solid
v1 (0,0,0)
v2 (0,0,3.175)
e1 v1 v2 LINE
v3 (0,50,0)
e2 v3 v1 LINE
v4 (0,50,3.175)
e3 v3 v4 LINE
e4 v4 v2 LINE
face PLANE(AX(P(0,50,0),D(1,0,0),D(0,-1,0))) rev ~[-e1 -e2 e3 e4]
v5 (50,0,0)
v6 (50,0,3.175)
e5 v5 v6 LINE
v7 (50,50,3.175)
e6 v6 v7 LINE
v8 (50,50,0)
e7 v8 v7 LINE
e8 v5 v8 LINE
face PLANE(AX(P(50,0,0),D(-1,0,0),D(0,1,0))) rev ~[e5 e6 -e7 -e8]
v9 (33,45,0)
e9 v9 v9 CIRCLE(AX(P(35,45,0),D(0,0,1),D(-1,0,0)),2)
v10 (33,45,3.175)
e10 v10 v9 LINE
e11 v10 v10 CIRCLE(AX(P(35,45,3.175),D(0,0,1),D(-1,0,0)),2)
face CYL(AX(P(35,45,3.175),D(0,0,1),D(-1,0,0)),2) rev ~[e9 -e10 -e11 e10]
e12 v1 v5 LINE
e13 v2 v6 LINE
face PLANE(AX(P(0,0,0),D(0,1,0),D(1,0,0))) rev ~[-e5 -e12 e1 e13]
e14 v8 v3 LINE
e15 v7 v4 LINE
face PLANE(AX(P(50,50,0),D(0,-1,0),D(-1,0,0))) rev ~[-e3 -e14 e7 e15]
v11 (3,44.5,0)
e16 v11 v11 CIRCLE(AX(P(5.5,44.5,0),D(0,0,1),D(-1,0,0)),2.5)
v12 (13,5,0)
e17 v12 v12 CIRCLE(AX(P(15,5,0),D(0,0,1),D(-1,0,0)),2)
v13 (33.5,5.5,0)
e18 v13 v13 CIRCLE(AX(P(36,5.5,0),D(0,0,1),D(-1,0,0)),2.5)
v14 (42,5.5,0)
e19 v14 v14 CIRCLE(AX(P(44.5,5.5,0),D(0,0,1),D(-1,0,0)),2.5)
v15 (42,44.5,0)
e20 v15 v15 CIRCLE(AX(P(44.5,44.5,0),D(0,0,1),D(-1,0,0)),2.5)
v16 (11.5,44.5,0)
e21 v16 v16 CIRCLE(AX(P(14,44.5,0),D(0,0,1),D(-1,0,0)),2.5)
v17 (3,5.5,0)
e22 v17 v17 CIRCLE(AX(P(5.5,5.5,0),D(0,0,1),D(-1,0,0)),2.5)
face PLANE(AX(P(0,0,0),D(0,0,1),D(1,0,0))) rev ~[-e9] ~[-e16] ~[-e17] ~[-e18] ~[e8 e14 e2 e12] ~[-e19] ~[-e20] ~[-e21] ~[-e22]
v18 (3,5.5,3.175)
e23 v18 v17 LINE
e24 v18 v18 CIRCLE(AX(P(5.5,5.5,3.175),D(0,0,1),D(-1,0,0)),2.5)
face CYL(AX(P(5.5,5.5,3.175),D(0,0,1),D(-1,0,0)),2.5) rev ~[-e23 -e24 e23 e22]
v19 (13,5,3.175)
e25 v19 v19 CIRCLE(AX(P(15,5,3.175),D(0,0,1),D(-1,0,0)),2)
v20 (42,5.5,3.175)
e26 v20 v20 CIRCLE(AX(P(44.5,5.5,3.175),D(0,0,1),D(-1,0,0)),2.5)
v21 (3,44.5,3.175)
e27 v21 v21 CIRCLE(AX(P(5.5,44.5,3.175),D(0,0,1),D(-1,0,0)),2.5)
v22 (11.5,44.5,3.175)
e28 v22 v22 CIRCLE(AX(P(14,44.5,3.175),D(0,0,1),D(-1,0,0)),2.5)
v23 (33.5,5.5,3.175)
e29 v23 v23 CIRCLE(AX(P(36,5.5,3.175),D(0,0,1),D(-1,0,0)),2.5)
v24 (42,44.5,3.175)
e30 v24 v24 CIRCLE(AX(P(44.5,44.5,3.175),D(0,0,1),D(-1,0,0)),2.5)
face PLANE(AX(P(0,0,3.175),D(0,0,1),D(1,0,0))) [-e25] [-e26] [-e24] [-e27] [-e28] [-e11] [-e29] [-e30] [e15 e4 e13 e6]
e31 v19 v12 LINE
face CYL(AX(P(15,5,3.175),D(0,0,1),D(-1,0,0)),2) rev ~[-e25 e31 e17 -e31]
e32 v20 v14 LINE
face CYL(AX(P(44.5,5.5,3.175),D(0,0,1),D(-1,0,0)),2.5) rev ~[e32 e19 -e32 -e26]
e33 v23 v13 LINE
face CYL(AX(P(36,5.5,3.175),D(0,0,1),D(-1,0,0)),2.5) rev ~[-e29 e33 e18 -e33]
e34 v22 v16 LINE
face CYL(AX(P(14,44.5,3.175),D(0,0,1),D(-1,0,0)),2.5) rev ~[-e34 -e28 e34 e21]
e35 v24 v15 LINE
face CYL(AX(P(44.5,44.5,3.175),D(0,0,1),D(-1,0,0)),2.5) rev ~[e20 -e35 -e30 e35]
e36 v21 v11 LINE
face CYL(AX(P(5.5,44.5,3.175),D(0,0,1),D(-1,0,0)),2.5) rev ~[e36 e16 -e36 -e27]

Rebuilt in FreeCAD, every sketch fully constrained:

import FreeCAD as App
import Part
import Sketcher


def add_polygon(sketch, points):
    """Adds a closed chain of lines whose ends are joined by coincident constraints."""
    first, n = sketch.GeometryCount, len(points)
    for a, b in zip(points, points[1:] + points[:1]):
        sketch.addGeometry(Part.LineSegment(App.Vector(*a, 0), App.Vector(*b, 0)), False)
    for i in range(n):
        sketch.addConstraint(Sketcher.Constraint("Coincident", first + i, 2, first + (i + 1) % n, 1))

doc = App.newDocument("Part")
body = doc.addObject("PartDesign::Body", "Body")

# Sketch on XY plane
sketch1 = body.newObject("Sketcher::SketchObject", "Sketch")
sketch1.AttachmentSupport = (doc.getObject("XY_Plane"), [""])
sketch1.MapMode = "FlatFace"
add_polygon(sketch1, [(0, 50), (0, 0), (50, 0), (50, 50)])  # lines 0-3
sketch1.addConstraint(Sketcher.Constraint("Vertical", 0))
sketch1.addConstraint(Sketcher.Constraint("Horizontal", 1))
sketch1.addConstraint(Sketcher.Constraint("Vertical", 2))
sketch1.addConstraint(Sketcher.Constraint("Horizontal", 3))
sketch1.addConstraint(Sketcher.Constraint("Coincident", 0, 2, -1, 1))
sketch1.addConstraint(Sketcher.Constraint("Equal", 3, 0))
sketch1.addConstraint(Sketcher.Constraint("DistanceX", 1, 1, 1, 2, 50.0))
pad1 = body.newObject("PartDesign::Pad", "Pad")
pad1.Profile = sketch1
pad1.Length = 3.175

# Sketch on XY plane
sketch2 = body.newObject("Sketcher::SketchObject", "Sketch001")
sketch2.AttachmentSupport = (doc.getObject("XY_Plane"), [""])
sketch2.MapMode = "FlatFace"
sketch2.AttachmentOffset = App.Placement(App.Vector(0, 0, 3.175), App.Rotation())
sketch2.addGeometry(Part.Circle(App.Vector(5.5, 44.5, 0), App.Vector(0, 0, 1), 2.5), False)
sketch2.addGeometry(Part.Circle(App.Vector(44.5, 44.5, 0), App.Vector(0, 0, 1), 2.5), False)
sketch2.addGeometry(Part.Circle(App.Vector(44.5, 5.5, 0), App.Vector(0, 0, 1), 2.5), False)
sketch2.addGeometry(Part.Circle(App.Vector(5.5, 5.5, 0), App.Vector(0, 0, 1), 2.5), False)
sketch2.addConstraint(Sketcher.Constraint("Equal", 0, 1))
sketch2.addConstraint(Sketcher.Constraint("Equal", 1, 2))
sketch2.addConstraint(Sketcher.Constraint("Equal", 2, 3))
sketch2.addConstraint(Sketcher.Constraint("Horizontal", 0, 3, 1, 3))
sketch2.addConstraint(Sketcher.Constraint("Horizontal", 2, 3, 3, 3))
sketch2.addConstraint(Sketcher.Constraint("Vertical", 1, 3, 2, 3))
sketch2.addConstraint(Sketcher.Constraint("Vertical", 0, 3, 3, 3))
sketch2.addConstraint(Sketcher.Constraint("Diameter", 0, 5.0))
sketch2.addConstraint(Sketcher.Constraint("DistanceX", 0, 3, 1, 3, 39.0))
sketch2.addConstraint(Sketcher.Constraint("DistanceY", 2, 3, 1, 3, 39.0))
sketch2.addConstraint(Sketcher.Constraint("DistanceX", -1, 1, 0, 3, 5.5))
sketch2.addConstraint(Sketcher.Constraint("DistanceY", -1, 1, 0, 3, 44.5))
pocket1 = body.newObject("PartDesign::Pocket", "Pocket")
pocket1.Profile = sketch2
pocket1.Length = 3.175

# Sketch on XY plane
sketch3 = body.newObject("Sketcher::SketchObject", "Sketch002")
sketch3.AttachmentSupport = (doc.getObject("XY_Plane"), [""])
sketch3.MapMode = "FlatFace"
sketch3.AttachmentOffset = App.Placement(App.Vector(0, 0, 3.175), App.Rotation())
sketch3.addGeometry(Part.Circle(App.Vector(35, 45, 0), App.Vector(0, 0, 1), 2), False)
sketch3.addGeometry(Part.Circle(App.Vector(15, 5, 0), App.Vector(0, 0, 1), 2), False)
sketch3.addConstraint(Sketcher.Constraint("Equal", 0, 1))
sketch3.addConstraint(Sketcher.Constraint("Diameter", 0, 4.0))
sketch3.addConstraint(Sketcher.Constraint("DistanceX", -1, 1, 0, 3, 35.0))
sketch3.addConstraint(Sketcher.Constraint("DistanceY", -1, 1, 0, 3, 45.0))
sketch3.addConstraint(Sketcher.Constraint("DistanceX", -1, 1, 1, 3, 15.0))
sketch3.addConstraint(Sketcher.Constraint("DistanceY", -1, 1, 1, 3, 5.0))
pocket2 = body.newObject("PartDesign::Pocket", "Pocket001")
pocket2.Profile = sketch3
pocket2.Length = 3.175

# Sketch on XY plane
sketch4 = body.newObject("Sketcher::SketchObject", "Sketch003")
sketch4.AttachmentSupport = (doc.getObject("XY_Plane"), [""])
sketch4.MapMode = "FlatFace"
sketch4.AttachmentOffset = App.Placement(App.Vector(0, 0, 3.175), App.Rotation())
sketch4.addGeometry(Part.Circle(App.Vector(14, 44.5, 0), App.Vector(0, 0, 1), 2.5), False)
sketch4.addGeometry(Part.Circle(App.Vector(36, 5.5, 0), App.Vector(0, 0, 1), 2.5), False)
sketch4.addConstraint(Sketcher.Constraint("Equal", 0, 1))
sketch4.addConstraint(Sketcher.Constraint("Diameter", 0, 5.0))
sketch4.addConstraint(Sketcher.Constraint("DistanceX", -1, 1, 0, 3, 14.0))
sketch4.addConstraint(Sketcher.Constraint("DistanceX", -1, 1, 1, 3, 36.0))
sketch4.addConstraint(Sketcher.Constraint("DistanceY", 1, 3, 0, 3, 39.0))
sketch4.addConstraint(Sketcher.Constraint("DistanceY", -1, 1, 0, 3, 44.5))
pocket3 = body.newObject("PartDesign::Pocket", "Pocket002")
pocket3.Profile = sketch4
pocket3.Length = 3.175

doc.recompute()
